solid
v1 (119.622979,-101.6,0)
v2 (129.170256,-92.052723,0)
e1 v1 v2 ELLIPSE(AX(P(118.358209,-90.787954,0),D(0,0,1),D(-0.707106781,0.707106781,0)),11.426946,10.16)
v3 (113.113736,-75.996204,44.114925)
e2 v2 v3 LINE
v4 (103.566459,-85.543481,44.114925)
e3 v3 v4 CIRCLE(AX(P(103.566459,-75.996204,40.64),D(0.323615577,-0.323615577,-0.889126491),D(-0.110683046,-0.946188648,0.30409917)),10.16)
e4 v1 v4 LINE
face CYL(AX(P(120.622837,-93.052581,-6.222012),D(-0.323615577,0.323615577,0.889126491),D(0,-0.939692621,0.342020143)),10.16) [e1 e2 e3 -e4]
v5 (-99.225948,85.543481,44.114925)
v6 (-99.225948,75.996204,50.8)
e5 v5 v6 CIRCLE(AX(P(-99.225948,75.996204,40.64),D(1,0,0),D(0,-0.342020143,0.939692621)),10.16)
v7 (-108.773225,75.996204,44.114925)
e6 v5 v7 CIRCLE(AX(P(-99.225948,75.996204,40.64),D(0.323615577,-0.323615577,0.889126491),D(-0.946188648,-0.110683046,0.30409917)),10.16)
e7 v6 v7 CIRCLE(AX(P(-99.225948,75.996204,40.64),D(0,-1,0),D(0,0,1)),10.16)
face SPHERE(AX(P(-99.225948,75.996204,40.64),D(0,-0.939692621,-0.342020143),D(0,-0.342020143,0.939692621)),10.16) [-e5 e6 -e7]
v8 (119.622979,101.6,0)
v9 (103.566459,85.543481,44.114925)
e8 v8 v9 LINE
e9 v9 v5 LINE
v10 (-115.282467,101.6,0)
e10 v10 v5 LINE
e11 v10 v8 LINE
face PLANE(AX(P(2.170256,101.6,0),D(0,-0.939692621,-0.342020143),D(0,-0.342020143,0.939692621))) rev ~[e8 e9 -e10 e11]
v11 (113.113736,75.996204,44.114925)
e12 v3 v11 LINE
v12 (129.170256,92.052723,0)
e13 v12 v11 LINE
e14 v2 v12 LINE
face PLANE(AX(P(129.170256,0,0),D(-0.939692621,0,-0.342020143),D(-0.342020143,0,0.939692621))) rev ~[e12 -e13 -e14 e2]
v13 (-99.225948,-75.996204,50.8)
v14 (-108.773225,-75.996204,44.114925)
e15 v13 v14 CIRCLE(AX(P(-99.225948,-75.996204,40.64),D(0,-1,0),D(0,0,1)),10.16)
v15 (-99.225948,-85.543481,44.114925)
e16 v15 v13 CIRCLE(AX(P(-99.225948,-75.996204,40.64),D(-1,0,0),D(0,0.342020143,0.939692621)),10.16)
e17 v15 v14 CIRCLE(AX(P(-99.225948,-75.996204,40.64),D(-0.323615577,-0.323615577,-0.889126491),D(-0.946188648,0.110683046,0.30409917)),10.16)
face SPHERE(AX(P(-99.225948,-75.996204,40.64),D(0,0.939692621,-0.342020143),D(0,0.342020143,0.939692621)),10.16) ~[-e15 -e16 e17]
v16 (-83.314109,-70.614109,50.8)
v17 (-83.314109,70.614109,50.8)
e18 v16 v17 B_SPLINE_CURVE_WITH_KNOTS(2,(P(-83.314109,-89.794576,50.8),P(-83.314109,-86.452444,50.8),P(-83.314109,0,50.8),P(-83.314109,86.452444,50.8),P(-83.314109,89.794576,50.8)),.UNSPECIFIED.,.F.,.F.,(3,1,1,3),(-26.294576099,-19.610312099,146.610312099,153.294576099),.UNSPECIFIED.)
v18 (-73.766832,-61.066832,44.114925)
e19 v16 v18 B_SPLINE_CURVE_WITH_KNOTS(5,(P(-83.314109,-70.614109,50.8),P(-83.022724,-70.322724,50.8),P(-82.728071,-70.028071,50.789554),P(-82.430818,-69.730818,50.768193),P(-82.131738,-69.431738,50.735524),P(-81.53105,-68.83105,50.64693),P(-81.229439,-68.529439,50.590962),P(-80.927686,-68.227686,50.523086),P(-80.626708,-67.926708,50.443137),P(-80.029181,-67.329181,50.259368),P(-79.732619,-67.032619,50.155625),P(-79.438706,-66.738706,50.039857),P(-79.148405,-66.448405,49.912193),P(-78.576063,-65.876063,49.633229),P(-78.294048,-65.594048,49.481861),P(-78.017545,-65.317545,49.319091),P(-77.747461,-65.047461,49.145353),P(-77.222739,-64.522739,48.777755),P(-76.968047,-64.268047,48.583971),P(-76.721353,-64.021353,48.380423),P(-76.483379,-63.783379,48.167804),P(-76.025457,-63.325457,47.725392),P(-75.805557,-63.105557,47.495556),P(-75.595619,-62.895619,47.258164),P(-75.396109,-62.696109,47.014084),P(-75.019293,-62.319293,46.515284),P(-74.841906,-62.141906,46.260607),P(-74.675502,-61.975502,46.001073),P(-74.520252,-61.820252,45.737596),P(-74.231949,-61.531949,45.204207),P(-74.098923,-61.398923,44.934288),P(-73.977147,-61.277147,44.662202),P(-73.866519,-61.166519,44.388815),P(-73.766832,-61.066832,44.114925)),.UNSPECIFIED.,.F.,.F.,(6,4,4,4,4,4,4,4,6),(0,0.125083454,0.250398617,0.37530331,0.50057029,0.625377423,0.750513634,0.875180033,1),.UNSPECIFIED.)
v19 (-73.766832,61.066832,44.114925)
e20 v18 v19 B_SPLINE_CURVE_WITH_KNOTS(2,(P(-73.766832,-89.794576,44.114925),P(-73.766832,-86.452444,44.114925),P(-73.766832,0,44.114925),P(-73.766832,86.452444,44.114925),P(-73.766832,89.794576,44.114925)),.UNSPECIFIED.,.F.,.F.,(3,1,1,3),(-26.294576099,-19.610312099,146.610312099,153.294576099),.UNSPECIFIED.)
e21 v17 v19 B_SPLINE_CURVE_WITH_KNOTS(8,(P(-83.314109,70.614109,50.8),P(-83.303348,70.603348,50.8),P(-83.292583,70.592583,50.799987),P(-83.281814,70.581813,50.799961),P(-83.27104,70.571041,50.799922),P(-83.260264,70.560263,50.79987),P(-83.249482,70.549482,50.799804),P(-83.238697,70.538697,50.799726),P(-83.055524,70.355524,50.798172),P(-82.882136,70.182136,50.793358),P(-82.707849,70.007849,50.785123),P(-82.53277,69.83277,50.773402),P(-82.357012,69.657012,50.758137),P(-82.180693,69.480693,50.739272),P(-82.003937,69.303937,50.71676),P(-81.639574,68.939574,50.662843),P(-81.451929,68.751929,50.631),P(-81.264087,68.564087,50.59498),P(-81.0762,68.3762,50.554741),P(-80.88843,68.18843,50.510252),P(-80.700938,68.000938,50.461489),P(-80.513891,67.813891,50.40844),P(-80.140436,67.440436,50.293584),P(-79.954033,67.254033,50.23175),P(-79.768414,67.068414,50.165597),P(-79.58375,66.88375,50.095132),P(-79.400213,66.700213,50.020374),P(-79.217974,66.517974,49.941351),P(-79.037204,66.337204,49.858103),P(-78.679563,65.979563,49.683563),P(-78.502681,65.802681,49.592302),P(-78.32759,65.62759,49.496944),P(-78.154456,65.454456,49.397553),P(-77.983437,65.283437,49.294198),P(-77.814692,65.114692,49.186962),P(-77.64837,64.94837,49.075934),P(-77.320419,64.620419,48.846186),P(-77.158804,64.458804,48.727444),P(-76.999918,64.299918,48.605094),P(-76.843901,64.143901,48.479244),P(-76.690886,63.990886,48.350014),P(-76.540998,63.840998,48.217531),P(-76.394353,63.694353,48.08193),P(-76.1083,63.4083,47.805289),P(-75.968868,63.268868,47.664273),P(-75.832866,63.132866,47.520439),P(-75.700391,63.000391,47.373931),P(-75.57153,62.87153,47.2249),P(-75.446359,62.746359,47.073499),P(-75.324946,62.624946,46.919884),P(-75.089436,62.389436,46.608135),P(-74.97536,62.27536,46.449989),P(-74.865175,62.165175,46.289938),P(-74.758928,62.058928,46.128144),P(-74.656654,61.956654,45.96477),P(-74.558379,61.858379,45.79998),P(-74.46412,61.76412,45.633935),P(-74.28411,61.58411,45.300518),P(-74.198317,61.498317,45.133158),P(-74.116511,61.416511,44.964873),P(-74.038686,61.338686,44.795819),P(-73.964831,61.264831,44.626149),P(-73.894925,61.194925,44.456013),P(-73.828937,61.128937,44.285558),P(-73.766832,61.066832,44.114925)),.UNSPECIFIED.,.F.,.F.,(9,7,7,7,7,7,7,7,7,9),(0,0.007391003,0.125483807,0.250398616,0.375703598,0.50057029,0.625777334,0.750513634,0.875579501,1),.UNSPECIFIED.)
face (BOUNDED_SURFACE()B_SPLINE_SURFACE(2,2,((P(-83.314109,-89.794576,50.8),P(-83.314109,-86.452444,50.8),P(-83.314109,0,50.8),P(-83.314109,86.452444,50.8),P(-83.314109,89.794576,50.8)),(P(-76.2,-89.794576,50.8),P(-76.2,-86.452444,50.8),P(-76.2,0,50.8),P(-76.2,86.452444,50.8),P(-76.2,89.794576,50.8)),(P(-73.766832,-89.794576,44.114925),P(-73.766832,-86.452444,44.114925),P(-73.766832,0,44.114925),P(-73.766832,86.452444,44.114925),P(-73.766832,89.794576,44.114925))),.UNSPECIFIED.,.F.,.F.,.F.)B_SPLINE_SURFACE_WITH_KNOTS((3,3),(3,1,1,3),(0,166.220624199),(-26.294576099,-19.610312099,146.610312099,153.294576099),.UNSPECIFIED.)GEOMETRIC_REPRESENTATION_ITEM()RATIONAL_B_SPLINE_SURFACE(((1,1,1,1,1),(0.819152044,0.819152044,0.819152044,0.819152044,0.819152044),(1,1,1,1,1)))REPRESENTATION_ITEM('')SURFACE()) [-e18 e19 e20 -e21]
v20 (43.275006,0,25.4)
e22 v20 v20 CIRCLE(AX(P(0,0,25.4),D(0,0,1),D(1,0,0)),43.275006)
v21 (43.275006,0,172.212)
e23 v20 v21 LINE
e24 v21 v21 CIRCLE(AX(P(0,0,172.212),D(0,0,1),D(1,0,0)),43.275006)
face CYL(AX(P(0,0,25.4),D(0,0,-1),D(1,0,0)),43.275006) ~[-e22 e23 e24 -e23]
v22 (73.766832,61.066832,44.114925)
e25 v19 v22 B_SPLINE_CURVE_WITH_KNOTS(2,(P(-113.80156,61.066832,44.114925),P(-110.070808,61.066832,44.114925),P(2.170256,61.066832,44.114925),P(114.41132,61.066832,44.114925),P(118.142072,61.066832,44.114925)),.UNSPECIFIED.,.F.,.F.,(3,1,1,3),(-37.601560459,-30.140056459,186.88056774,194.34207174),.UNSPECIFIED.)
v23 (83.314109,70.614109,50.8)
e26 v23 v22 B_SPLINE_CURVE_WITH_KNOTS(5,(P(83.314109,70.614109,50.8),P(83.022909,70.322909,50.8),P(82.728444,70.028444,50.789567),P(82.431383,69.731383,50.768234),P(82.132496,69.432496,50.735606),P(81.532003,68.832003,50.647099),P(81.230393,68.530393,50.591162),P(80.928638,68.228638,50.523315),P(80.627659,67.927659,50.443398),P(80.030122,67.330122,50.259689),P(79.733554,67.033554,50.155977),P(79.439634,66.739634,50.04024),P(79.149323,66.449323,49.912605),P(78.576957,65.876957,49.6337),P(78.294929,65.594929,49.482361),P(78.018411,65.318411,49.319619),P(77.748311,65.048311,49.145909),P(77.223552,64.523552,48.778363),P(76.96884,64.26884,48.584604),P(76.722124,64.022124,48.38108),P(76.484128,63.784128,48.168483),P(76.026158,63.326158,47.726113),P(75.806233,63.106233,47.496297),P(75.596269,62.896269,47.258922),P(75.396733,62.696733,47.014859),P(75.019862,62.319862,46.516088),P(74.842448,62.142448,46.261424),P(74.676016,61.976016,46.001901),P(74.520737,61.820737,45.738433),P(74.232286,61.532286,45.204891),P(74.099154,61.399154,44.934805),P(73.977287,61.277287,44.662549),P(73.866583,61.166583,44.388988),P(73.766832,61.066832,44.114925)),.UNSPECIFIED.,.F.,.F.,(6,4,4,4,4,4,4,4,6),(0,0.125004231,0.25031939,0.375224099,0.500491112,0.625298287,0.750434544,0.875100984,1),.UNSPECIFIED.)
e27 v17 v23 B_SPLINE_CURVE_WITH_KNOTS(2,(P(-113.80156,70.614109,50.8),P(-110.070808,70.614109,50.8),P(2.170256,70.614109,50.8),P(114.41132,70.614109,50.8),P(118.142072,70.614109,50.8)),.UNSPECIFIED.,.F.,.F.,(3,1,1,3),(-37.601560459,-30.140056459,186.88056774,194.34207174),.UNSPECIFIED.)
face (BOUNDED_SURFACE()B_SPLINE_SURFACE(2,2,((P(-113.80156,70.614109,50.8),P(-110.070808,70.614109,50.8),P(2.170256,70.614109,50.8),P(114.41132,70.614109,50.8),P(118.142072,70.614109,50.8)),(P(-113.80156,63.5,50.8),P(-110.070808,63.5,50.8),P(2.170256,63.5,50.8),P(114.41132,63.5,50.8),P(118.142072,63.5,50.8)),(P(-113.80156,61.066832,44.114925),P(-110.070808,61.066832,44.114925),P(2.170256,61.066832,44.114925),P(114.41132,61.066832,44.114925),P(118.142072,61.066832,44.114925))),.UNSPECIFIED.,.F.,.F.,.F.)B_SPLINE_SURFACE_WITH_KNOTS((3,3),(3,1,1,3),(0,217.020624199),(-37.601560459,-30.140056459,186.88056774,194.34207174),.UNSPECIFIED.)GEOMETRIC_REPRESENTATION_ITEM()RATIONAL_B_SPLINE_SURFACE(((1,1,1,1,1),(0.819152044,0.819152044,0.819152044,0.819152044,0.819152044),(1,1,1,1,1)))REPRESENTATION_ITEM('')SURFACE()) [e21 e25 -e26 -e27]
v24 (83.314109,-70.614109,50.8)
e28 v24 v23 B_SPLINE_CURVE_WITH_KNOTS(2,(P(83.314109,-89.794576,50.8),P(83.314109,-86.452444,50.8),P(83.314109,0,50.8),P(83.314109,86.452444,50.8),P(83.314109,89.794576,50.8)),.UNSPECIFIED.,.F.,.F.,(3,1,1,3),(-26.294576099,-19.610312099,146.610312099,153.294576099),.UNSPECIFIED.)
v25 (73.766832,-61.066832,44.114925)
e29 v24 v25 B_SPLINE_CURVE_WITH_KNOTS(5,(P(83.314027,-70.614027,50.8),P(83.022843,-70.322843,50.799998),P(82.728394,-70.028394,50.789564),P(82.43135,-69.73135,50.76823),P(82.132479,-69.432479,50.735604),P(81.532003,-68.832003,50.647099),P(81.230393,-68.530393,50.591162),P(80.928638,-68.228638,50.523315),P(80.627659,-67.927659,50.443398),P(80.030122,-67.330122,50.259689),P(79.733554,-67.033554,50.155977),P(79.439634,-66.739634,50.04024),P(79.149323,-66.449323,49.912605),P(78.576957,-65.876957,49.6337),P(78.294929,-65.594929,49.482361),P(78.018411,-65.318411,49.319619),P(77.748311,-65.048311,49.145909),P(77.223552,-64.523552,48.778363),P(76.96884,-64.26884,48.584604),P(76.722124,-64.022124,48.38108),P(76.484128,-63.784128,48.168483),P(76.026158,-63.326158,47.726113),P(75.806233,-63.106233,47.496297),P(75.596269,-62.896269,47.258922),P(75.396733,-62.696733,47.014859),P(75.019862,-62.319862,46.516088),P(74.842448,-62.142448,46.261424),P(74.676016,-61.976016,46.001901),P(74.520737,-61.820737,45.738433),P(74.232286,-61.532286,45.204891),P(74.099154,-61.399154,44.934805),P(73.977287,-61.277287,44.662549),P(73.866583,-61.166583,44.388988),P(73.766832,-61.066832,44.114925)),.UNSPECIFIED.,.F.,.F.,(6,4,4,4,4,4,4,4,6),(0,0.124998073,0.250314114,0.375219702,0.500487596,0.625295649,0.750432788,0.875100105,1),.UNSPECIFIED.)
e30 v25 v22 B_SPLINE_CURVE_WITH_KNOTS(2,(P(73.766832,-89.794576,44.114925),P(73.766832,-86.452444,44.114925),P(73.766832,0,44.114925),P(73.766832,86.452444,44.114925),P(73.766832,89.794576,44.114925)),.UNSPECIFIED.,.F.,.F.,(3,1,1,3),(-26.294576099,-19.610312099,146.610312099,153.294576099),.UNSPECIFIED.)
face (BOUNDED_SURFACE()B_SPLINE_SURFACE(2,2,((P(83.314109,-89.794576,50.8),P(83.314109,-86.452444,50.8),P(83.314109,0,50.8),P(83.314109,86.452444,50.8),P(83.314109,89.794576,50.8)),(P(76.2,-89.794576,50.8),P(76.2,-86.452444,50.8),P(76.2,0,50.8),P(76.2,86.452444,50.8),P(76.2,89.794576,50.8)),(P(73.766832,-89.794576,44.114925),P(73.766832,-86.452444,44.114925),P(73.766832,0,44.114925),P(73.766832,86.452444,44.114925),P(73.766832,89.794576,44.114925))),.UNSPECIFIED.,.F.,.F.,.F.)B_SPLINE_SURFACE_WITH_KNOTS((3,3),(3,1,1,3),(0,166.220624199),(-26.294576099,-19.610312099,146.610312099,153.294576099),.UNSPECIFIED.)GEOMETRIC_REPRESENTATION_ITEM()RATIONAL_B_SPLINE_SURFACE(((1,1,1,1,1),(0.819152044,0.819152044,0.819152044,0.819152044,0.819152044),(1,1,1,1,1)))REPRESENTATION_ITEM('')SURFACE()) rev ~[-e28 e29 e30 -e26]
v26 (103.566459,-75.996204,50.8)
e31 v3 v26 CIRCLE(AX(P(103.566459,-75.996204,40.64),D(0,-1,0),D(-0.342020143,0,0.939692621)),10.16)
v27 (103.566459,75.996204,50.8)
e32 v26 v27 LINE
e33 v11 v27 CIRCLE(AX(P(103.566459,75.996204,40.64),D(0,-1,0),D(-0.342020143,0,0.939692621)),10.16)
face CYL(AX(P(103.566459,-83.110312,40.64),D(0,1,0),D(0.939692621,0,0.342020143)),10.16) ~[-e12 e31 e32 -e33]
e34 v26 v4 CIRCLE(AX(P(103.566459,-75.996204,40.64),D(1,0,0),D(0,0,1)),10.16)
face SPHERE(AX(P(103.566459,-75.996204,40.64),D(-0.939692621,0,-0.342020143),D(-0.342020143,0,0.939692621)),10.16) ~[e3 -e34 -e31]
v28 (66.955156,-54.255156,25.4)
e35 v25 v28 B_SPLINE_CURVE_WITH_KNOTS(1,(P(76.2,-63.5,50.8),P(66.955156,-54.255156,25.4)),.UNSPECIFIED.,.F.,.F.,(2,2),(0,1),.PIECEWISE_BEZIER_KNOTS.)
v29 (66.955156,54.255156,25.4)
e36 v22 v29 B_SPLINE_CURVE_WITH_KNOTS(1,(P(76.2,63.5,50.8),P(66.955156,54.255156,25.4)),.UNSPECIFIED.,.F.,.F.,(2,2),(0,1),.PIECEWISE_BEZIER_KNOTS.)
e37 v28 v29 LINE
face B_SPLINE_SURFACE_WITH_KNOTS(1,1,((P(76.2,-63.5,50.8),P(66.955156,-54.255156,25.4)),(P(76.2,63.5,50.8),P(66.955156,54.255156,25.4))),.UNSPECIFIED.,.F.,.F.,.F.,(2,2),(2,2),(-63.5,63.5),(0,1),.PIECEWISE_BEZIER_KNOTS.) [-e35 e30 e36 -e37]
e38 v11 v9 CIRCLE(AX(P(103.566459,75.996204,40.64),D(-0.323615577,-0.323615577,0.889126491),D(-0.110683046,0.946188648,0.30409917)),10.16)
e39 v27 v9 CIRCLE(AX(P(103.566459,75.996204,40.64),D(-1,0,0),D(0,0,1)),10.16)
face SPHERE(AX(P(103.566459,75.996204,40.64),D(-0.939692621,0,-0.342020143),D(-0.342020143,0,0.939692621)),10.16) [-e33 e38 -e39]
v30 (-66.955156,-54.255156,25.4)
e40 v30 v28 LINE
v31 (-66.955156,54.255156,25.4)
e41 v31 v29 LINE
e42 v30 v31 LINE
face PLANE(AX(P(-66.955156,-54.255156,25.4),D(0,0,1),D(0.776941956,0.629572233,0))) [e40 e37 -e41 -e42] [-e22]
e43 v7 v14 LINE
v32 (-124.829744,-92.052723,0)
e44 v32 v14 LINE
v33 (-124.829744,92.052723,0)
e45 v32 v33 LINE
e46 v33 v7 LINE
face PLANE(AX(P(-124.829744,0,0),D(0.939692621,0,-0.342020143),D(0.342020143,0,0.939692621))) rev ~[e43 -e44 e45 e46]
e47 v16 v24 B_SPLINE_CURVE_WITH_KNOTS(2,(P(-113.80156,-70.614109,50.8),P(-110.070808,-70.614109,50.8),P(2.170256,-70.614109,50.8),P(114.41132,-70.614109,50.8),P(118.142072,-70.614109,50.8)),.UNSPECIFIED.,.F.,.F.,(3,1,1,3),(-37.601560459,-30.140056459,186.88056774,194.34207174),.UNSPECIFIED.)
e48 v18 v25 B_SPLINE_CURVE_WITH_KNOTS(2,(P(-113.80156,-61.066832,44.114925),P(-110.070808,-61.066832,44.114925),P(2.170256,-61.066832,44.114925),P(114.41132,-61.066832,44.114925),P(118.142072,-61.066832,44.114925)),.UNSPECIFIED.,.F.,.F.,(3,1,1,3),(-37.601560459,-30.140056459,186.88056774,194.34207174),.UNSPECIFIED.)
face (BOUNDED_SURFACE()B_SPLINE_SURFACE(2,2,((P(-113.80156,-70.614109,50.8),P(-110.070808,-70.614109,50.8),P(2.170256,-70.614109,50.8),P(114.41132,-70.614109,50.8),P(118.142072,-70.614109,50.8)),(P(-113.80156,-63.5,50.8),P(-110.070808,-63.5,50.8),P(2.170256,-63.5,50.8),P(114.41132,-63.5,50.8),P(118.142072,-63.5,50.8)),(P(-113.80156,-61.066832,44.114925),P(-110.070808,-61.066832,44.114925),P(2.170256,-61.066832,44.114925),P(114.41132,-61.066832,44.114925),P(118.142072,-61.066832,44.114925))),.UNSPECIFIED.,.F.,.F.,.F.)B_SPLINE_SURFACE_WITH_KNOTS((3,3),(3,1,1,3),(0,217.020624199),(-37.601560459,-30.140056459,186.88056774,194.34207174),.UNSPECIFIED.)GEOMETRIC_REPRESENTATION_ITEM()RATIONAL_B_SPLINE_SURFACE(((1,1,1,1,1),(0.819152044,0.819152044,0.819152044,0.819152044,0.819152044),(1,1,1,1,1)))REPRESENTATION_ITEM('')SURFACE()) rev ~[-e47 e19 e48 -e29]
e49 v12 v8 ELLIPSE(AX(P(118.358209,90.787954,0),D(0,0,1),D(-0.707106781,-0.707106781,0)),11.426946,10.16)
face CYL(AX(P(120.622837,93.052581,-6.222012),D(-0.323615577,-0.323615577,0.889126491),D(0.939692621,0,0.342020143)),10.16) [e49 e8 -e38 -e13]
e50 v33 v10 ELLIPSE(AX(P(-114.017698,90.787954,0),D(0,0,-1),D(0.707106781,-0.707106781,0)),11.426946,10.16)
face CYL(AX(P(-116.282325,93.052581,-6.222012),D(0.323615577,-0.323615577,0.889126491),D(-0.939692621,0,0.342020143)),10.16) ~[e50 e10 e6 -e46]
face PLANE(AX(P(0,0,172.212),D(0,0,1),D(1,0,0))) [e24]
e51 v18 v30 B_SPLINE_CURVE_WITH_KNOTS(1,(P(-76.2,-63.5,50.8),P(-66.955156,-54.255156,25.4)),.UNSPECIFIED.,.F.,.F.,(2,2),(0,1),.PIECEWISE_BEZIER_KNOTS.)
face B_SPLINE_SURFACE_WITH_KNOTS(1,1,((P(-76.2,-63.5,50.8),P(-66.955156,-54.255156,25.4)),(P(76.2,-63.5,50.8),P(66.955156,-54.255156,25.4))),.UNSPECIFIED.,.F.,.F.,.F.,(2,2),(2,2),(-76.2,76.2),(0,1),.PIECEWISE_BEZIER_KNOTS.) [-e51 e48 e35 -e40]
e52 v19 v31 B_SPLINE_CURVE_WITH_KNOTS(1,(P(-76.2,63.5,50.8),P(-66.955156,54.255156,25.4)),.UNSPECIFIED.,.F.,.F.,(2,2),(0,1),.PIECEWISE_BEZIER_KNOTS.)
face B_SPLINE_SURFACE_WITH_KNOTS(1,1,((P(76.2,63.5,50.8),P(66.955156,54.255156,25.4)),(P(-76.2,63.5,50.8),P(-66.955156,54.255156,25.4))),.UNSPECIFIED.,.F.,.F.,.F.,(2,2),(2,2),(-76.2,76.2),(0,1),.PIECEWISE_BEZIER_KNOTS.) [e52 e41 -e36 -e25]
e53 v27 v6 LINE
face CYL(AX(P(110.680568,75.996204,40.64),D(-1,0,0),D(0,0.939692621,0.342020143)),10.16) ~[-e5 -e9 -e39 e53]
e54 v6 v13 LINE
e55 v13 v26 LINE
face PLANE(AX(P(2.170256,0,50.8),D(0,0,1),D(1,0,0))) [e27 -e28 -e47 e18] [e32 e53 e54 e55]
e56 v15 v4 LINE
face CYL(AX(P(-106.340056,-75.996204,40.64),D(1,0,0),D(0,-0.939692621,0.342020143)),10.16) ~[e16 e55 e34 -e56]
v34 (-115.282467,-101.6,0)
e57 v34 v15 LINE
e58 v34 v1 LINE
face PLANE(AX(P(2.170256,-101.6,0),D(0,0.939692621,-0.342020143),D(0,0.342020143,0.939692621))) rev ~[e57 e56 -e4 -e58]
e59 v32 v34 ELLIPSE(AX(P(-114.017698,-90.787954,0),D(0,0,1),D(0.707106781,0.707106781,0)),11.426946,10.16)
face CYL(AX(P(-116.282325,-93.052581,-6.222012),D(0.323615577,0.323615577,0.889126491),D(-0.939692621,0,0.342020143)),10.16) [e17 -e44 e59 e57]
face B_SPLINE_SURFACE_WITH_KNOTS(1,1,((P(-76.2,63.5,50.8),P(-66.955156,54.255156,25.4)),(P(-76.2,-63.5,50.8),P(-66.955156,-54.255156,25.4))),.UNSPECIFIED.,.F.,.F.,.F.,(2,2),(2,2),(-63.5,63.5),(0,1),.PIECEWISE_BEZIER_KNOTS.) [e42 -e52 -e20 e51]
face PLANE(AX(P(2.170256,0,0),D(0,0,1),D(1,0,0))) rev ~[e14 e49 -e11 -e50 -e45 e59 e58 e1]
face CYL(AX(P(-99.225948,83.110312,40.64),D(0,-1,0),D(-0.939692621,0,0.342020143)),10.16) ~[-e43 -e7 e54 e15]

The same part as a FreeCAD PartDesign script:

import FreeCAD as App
import Part
import Sketcher

V = App.Vector
Q = App.Units.Quantity


def edges_at(feature, points):
    """Names of the edges that pass closest to the given points."""
    edges = feature.Shape.Edges
    near = lambda p: min(range(len(edges)), key=lambda i: edges[i].distToShape(Part.Vertex(*p))[0])
    return sorted({f"Edge{near(p) + 1}" for p in points})


def add_polygon(sketch, points):
    """Adds a closed chain of lines whose ends are joined by coincident constraints."""
    first, n = sketch.GeometryCount, len(points)
    for a, b in zip(points, points[1:] + points[:1]):
        sketch.addGeometry(Part.LineSegment(App.Vector(*a, 0), App.Vector(*b, 0)), False)
    for i in range(n):
        sketch.addConstraint(Sketcher.Constraint("Coincident", first + i, 2, first + (i + 1) % n, 1))

doc = App.newDocument("Part")
params = doc.addObject("Spreadsheet::Sheet", "Params")
for row, (alias, value) in enumerate([
    ("sketch1_width", "10 in"),
    ("sketch1_height", "8 in"),
    ("pad1_length", "2 in"),
    ("pad1_taper", "-20 deg"),
    ("sketch2_width", "6 in"),
    ("sketch2_height", "5 in"),
    ("pocket1_length", "1 in"),
    ("pocket1_taper", "-20 deg"),
    ("fillet_radius", "0.4 in"),
    ("pad2_length", "5.78 in"),
], start=1):
    params.set(f"A{row}", alias)
    params.set(f"B{row}", "=" + value)
    params.setAlias(f"B{row}", alias)

body = doc.addObject("PartDesign::Body", "Body")

sketch1 = doc.addObject("Sketcher::SketchObject", "Sketch")
body.addObject(sketch1)
sketch1.AttachmentSupport = (doc.XY_Plane, [""])
sketch1.MapMode = "FlatFace"
add_polygon(sketch1, [(-125, 102), (-125, -102), (129, -102), (129, 102)])
sketch1.addConstraint(Sketcher.Constraint("Vertical", 0))
sketch1.addConstraint(Sketcher.Constraint("Horizontal", 1))
sketch1.addConstraint(Sketcher.Constraint("Vertical", 2))
sketch1.addConstraint(Sketcher.Constraint("Horizontal", 3))
sketch1.addConstraint(Sketcher.Constraint("DistanceX", 1, 1, 1, 2, Q("10 in")))
sketch1.addConstraint(Sketcher.Constraint("DistanceY", 0, 2, 0, 1, Q("8 in")))
sketch1.addConstraint(Sketcher.Constraint("DistanceY", 0, 2, -1, 1, Q("4 in")))
sketch1.addConstraint(Sketcher.Constraint("DistanceX", 0, 2, -1, 1, Q("124.829744 mm")))
sketch1.setExpression("Constraints[8]", "Params.sketch1_width")
sketch1.setExpression("Constraints[9]", "Params.sketch1_height")
pad1 = doc.addObject("PartDesign::Pad", "Pad")
body.addObject(pad1)
pad1.Profile = sketch1
pad1.setExpression("Length", "Params.pad1_length")
pad1.setExpression("TaperAngle", "Params.pad1_taper")

sketch2 = doc.addObject("Sketcher::SketchObject", "Sketch001")
body.addObject(sketch2)
sketch2.AttachmentSupport = (doc.XY_Plane, [""])
sketch2.MapMode = "FlatFace"
sketch2.AttachmentOffset = App.Placement(V(0, 0, 2 * 25.4), App.Rotation())
add_polygon(sketch2, [(-76, 64), (-76, -64), (76, -64), (76, 64)])
sketch2.addConstraint(Sketcher.Constraint("Vertical", 0))
sketch2.addConstraint(Sketcher.Constraint("Horizontal", 1))
sketch2.addConstraint(Sketcher.Constraint("Vertical", 2))
sketch2.addConstraint(Sketcher.Constraint("Horizontal", 3))
sketch2.addConstraint(Sketcher.Constraint("Symmetric", 0, 2, 2, 2, -1, 1))
sketch2.addConstraint(Sketcher.Constraint("DistanceX", 1, 1, 1, 2, Q("6 in")))
sketch2.addConstraint(Sketcher.Constraint("DistanceY", 0, 2, 0, 1, Q("5 in")))
sketch2.setExpression("Constraints[9]", "Params.sketch2_width")
sketch2.setExpression("Constraints[10]", "Params.sketch2_height")
pocket1 = doc.addObject("PartDesign::Pocket", "Pocket")
body.addObject(pocket1)
pocket1.Profile = sketch2
pocket1.setExpression("Length", "Params.pocket1_length")
pocket1.setExpression("TaperAngle", "Params.pocket1_taper")
doc.recompute()

fillet = doc.addObject("PartDesign::Fillet", "Fillet")
body.addObject(fillet)
fillet.Base = (pocket1, edges_at(pocket1, [
    (-106.34, 0, 50.8),
    (2.17, 83.11, 50.8),
    (2.17, -83.11, 50.8),
    (110.681, 0, 50.8),
    (76.2, 0, 50.8),
    (0, 63.5, 50.8),
    (-76.2, 0, 50.8),
    (0, -63.5, 50.8),
    (119.925, -92.355, 25.4),
    (119.925, 92.355, 25.4),
    (-115.585, -92.355, 25.4),
    (-115.585, 92.355, 25.4),
]))
fillet.setExpression("Radius", "Params.fillet_radius")

sketch3 = doc.addObject("Sketcher::SketchObject", "Sketch002")
body.addObject(sketch3)
sketch3.AttachmentSupport = (doc.XY_Plane, [""])
sketch3.MapMode = "FlatFace"
sketch3.AttachmentOffset = App.Placement(V(0, 0, 1 * 25.4), App.Rotation())
sketch3.addGeometry(Part.Circle(V(0, 0, 0), V(0, 0, 1), 43), False)
sketch3.addConstraint(Sketcher.Constraint("Coincident", 0, 3, -1, 1))
sketch3.addConstraint(Sketcher.Constraint("Diameter", 0, Q("86.550013 mm")))
pad2 = doc.addObject("PartDesign::Pad", "Pad001")
body.addObject(pad2)
pad2.Profile = sketch3
pad2.setExpression("Length", "Params.pad2_length")

doc.recompute()
